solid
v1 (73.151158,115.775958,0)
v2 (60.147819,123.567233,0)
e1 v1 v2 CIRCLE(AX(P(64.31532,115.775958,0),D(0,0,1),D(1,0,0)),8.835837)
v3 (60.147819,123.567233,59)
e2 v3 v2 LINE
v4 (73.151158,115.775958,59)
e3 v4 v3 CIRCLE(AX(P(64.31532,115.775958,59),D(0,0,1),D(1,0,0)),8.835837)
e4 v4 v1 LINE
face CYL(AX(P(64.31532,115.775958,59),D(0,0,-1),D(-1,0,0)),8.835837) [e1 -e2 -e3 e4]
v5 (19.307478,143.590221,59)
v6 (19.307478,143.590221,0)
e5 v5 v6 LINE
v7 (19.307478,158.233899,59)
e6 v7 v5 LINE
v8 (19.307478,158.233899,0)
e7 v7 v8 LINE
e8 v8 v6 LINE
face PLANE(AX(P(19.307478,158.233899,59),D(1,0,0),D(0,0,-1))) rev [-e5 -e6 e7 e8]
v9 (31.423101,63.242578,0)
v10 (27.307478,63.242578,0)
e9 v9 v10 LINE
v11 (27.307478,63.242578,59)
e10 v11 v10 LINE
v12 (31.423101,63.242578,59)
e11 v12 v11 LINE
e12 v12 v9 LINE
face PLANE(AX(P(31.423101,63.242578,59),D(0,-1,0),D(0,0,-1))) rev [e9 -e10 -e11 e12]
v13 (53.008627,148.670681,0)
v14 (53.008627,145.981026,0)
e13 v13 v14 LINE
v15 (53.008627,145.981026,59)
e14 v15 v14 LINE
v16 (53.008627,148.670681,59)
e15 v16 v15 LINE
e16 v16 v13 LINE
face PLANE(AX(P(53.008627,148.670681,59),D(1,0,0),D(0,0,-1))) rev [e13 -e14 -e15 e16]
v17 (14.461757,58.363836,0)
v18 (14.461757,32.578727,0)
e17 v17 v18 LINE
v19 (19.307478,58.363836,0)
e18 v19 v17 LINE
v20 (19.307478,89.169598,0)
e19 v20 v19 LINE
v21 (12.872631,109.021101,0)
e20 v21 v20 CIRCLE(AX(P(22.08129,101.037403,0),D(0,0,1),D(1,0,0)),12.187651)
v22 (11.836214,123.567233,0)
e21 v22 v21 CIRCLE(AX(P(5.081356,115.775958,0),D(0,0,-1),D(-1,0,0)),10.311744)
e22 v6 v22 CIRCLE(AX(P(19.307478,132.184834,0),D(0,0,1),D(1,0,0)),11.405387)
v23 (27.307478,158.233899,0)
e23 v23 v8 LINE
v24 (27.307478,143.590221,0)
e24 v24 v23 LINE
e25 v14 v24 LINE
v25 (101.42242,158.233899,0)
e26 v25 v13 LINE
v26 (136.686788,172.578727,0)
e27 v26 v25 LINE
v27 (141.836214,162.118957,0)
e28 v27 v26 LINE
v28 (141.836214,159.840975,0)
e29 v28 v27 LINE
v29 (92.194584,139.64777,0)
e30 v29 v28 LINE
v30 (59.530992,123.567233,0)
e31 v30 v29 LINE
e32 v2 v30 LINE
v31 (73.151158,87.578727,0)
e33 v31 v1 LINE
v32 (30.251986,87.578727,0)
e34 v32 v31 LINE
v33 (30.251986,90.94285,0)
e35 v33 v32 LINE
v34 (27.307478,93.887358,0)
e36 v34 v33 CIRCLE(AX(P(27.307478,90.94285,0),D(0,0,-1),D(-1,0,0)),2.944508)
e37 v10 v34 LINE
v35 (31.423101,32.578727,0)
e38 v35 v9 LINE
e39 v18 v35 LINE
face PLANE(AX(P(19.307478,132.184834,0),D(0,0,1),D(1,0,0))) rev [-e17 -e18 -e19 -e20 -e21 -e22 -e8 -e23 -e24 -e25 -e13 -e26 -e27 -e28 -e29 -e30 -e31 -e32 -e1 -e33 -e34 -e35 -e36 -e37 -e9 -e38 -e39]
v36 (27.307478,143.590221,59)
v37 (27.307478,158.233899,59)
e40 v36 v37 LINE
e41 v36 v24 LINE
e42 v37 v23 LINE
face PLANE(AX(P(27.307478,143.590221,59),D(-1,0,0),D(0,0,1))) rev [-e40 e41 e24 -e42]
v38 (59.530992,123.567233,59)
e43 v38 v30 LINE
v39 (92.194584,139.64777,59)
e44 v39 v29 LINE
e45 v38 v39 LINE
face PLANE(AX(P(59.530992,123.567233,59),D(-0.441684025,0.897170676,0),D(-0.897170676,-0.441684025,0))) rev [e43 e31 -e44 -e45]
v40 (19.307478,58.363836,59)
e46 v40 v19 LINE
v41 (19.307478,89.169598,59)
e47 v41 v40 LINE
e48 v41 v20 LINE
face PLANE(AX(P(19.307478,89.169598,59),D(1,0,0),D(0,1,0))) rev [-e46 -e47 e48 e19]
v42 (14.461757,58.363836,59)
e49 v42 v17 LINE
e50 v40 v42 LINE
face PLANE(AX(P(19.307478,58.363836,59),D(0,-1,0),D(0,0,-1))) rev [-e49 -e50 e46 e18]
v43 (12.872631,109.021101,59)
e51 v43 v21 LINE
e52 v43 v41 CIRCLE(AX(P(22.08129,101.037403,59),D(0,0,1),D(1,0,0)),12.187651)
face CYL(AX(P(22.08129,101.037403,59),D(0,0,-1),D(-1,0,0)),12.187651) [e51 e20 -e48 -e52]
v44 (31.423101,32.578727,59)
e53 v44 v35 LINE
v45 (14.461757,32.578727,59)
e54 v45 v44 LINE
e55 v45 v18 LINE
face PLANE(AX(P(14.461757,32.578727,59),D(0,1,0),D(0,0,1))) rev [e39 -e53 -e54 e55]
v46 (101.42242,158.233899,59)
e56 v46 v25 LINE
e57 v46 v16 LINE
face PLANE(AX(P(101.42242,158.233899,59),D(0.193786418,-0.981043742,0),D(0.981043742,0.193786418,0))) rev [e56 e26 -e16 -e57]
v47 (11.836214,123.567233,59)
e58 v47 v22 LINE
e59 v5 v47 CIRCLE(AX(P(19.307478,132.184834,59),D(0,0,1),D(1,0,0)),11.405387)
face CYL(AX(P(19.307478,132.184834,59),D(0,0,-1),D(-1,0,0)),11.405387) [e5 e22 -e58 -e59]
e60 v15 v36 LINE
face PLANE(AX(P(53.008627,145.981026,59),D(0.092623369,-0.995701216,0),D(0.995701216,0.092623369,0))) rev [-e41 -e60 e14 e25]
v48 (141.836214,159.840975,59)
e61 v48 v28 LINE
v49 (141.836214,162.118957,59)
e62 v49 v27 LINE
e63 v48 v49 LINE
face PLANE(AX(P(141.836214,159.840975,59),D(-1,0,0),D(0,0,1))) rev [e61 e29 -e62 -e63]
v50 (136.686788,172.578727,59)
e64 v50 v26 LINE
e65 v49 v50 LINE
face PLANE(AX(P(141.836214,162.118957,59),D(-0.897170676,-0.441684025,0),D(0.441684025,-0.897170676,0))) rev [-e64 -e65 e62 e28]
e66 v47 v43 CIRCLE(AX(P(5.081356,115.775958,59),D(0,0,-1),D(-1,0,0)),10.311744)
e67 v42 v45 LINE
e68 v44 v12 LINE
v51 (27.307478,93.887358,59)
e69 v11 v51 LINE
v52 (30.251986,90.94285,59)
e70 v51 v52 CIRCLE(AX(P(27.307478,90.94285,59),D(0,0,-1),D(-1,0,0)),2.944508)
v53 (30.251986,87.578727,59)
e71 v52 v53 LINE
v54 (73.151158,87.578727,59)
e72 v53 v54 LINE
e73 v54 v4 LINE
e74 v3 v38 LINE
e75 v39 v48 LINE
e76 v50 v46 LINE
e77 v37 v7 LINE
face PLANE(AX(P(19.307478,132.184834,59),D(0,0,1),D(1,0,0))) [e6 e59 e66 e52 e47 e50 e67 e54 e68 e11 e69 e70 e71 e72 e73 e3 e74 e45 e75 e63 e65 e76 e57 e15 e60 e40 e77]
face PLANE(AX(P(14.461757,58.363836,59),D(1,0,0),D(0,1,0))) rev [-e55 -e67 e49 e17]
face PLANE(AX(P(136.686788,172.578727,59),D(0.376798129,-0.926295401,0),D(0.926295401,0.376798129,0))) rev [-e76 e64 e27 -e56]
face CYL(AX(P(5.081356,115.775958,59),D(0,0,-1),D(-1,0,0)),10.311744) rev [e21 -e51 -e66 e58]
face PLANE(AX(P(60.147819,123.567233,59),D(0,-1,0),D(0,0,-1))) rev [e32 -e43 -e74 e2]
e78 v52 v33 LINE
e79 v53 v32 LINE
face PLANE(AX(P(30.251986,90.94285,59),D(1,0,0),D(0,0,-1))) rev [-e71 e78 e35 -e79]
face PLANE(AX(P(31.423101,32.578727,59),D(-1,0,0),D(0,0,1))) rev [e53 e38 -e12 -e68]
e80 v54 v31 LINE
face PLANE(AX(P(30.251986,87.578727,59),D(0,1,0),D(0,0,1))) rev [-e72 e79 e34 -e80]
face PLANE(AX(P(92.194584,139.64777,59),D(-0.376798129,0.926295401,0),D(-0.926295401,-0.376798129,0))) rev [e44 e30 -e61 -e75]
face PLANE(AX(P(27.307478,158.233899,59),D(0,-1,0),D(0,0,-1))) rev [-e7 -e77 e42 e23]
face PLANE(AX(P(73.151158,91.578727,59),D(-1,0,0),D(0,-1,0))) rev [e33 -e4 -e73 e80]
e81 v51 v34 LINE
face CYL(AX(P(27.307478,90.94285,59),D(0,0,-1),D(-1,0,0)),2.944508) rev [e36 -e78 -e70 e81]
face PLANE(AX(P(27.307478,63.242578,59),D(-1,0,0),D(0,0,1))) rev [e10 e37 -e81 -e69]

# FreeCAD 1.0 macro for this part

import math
import FreeCAD as App
import Part
import Sketcher

doc = App.newDocument("Part")
body = doc.addObject("PartDesign::Body", "Body")

# Sketch on XY plane
sketch1 = doc.addObject("Sketcher::SketchObject", "Sketch")
body.addObject(sketch1)
sketch1.AttachmentSupport = (doc.XY_Plane, [""])
sketch1.MapMode = "FlatFace"
sketch1.addGeometry([
    Part.LineSegment(App.Vector(141.8, 162.1, 0), App.Vector(136.7, 172.6, 0)),  # 0
    Part.LineSegment(App.Vector(136.7, 172.6, 0), App.Vector(101.4, 158.2, 0)),  # 1
    Part.LineSegment(App.Vector(101.4, 158.2, 0), App.Vector(53, 148.7, 0)),  # 2
    Part.LineSegment(App.Vector(53, 148.7, 0), App.Vector(53, 146, 0)),  # 3
    Part.LineSegment(App.Vector(53, 146, 0), App.Vector(27.3, 143.6, 0)),  # 4
    Part.LineSegment(App.Vector(27.3, 143.6, 0), App.Vector(27.3, 158.2, 0)),  # 5
    Part.LineSegment(App.Vector(27.3, 158.2, 0), App.Vector(19.3, 158.2, 0)),  # 6
    Part.LineSegment(App.Vector(19.3, 158.2, 0), App.Vector(19.3, 143.6, 0)),  # 7
    Part.ArcOfCircle(Part.Circle(App.Vector(19.3, 132.2, 0), App.Vector(0, 0, 1), 11.4), math.radians(90), math.radians(229)),  # 8
    Part.ArcOfCircle(Part.Circle(App.Vector(5.1, 115.8, 0), App.Vector(0, 0, 1), 10.3), math.radians(-41), math.radians(49)),  # 9
    Part.ArcOfCircle(Part.Circle(App.Vector(22.1, 101, 0), App.Vector(0, 0, 1), 12.2), math.radians(139), math.radians(257)),  # 10
    Part.LineSegment(App.Vector(19.3, 89.2, 0), App.Vector(19.3, 58.4, 0)),  # 11
    Part.LineSegment(App.Vector(19.3, 58.4, 0), App.Vector(14.5, 58.4, 0)),  # 12
    Part.LineSegment(App.Vector(14.5, 58.4, 0), App.Vector(14.5, 32.6, 0)),  # 13
    Part.LineSegment(App.Vector(14.5, 32.6, 0), App.Vector(31.4, 32.6, 0)),  # 14
    Part.LineSegment(App.Vector(31.4, 32.6, 0), App.Vector(31.4, 63.2, 0)),  # 15
    Part.LineSegment(App.Vector(31.4, 63.2, 0), App.Vector(27.3, 63.2, 0)),  # 16
    Part.LineSegment(App.Vector(27.3, 63.2, 0), App.Vector(27.3, 93.9, 0)),  # 17
    Part.ArcOfCircle(Part.Circle(App.Vector(27.3, 90.9, 0), App.Vector(0, 0, 1), 2.9), math.radians(0), math.radians(90)),  # 18
    Part.LineSegment(App.Vector(30.3, 90.9, 0), App.Vector(30.3, 87.6, 0)),  # 19
    Part.LineSegment(App.Vector(30.3, 87.6, 0), App.Vector(73.2, 87.6, 0)),  # 20
    Part.LineSegment(App.Vector(73.2, 87.6, 0), App.Vector(73.2, 115.8, 0)),  # 21
    Part.ArcOfCircle(Part.Circle(App.Vector(64.3, 115.8, 0), App.Vector(0, 0, 1), 8.8), math.radians(0), math.radians(118)),  # 22
    Part.LineSegment(App.Vector(60.1, 123.6, 0), App.Vector(59.5, 123.6, 0)),  # 23
    Part.LineSegment(App.Vector(59.5, 123.6, 0), App.Vector(92.2, 139.6, 0)),  # 24
    Part.LineSegment(App.Vector(92.2, 139.6, 0), App.Vector(141.8, 159.8, 0)),  # 25
    Part.LineSegment(App.Vector(141.8, 159.8, 0), App.Vector(141.8, 162.1, 0)),  # 26
], False)
sketch1.addConstraint([
    Sketcher.Constraint("Coincident", 0, 2, 1, 1),
    Sketcher.Constraint("Coincident", 1, 2, 2, 1),
    Sketcher.Constraint("Coincident", 2, 2, 3, 1),
    Sketcher.Constraint("Coincident", 3, 2, 4, 1),
    Sketcher.Constraint("Coincident", 4, 2, 5, 1),
    Sketcher.Constraint("Coincident", 5, 2, 6, 1),
    Sketcher.Constraint("Coincident", 6, 2, 7, 1),
    Sketcher.Constraint("Coincident", 7, 2, 8, 1),
    Sketcher.Constraint("Tangent", 8, 2, 9, 2),
    Sketcher.Constraint("Tangent", 9, 1, 10, 1),
    Sketcher.Constraint("Coincident", 10, 2, 11, 1),
    Sketcher.Constraint("Coincident", 11, 2, 12, 1),
    Sketcher.Constraint("Coincident", 12, 2, 13, 1),
    Sketcher.Constraint("Coincident", 13, 2, 14, 1),
    Sketcher.Constraint("Coincident", 14, 2, 15, 1),
    Sketcher.Constraint("Coincident", 15, 2, 16, 1),
    Sketcher.Constraint("Coincident", 16, 2, 17, 1),
    Sketcher.Constraint("Coincident", 17, 2, 18, 2),
    Sketcher.Constraint("Tangent", 18, 1, 19, 1),
    Sketcher.Constraint("Coincident", 19, 2, 20, 1),
    Sketcher.Constraint("Coincident", 20, 2, 21, 1),
    Sketcher.Constraint("Tangent", 21, 2, 22, 1),
    Sketcher.Constraint("Coincident", 22, 2, 23, 1),
    Sketcher.Constraint("Coincident", 23, 2, 24, 1),
    Sketcher.Constraint("Coincident", 24, 2, 25, 1),
    Sketcher.Constraint("Coincident", 25, 2, 26, 1),
    Sketcher.Constraint("Coincident", 26, 2, 0, 1),
    Sketcher.Constraint("Vertical", 3),
    Sketcher.Constraint("Vertical", 5),
    Sketcher.Constraint("Horizontal", 6),
    Sketcher.Constraint("Vertical", 7),
    Sketcher.Constraint("Vertical", 11),
    Sketcher.Constraint("Horizontal", 12),
    Sketcher.Constraint("Vertical", 13),
    Sketcher.Constraint("Horizontal", 14),
    Sketcher.Constraint("Vertical", 15),
    Sketcher.Constraint("Horizontal", 16),
    Sketcher.Constraint("Vertical", 17),
    Sketcher.Constraint("Vertical", 19),
    Sketcher.Constraint("Horizontal", 20),
    Sketcher.Constraint("Vertical", 21),
    Sketcher.Constraint("Horizontal", 23),
    Sketcher.Constraint("Vertical", 26),
    Sketcher.Constraint("Perpendicular", 0, 24),
    Sketcher.Constraint("Parallel", 1, 25),
    Sketcher.Constraint("Horizontal", 9, 3, 22, 3),
    Sketcher.Constraint("Horizontal", 1, 2, 5, 2),
    Sketcher.Constraint("Horizontal", 4, 2, 7, 2),
    Sketcher.Constraint("Horizontal", 8, 2, 22, 2),
    Sketcher.Constraint("Vertical", 18, 3, 4, 2),
    Sketcher.Constraint("Vertical", 8, 3, 6, 2),
    Sketcher.Constraint("Vertical", 7, 2, 10, 2),
    Sketcher.Constraint("Vertical", 5, 2, 16, 2),
    Sketcher.Constraint("DistanceX", 6, 2, 6, 1, 8.0),
    Sketcher.Constraint("Radius", 10, 12.187651),
    Sketcher.Constraint("Radius", 8, 11.405387),
    Sketcher.Constraint("Radius", 9, 10.311744),
    Sketcher.Constraint("Radius", 18, 2.944508),
    Sketcher.Constraint("Radius", 22, 8.835837),
    Sketcher.Constraint("DistanceY", 21, 2, 26, 2, 46.342998),
    Sketcher.Constraint("DistanceX", 12, 2, 12, 1, 4.845721),
    Sketcher.Constraint("DistanceX", 20, 1, 20, 2, 42.899172),
    Sketcher.Constraint("DistanceY", 5, 1, 5, 2, 14.643678),
    Sketcher.Constraint("DistanceY", 11, 2, 11, 1, 30.805761),
    Sketcher.Constraint("DistanceY", 13, 2, 13, 1, 25.785109),
    Sketcher.Constraint("DistanceY", 15, 1, 15, 2, 30.663851),
    Sketcher.Constraint("DistanceY", 17, 1, 17, 2, 30.64478),
    Sketcher.Constraint("DistanceY", 21, 1, 21, 2, 28.197231),
    Sketcher.Constraint("DistanceY", 26, 1, 26, 2, 2.277981),
    Sketcher.Constraint("DistanceY", -1, 1, 1, 2, 158.233899),
    Sketcher.Constraint("DistanceY", -1, 1, 9, 1, 109.021101),
    Sketcher.Constraint("DistanceX", -1, 1, 14, 2, 31.423101),
    Sketcher.Constraint("DistanceX", 10, 3, 0, 2, 114.605499),
    Sketcher.Constraint("DistanceX", 22, 3, 1, 2, 37.1071),
    Sketcher.Constraint("DistanceY", 8, 2, 8, 3, 8.617602),
    Sketcher.Constraint("Distance", 2, 49.349271),
    Sketcher.Constraint("Distance", 4, 25.81211),
    Sketcher.Constraint("DistanceX", 14, 1, 14, 2, 16.961344),
    Sketcher.Constraint("DistanceX", 23, 2, 23, 1, 0.616827),
    Sketcher.Constraint("DistanceY", 3, 2, 3, 1, 2.689655),
    Sketcher.Constraint("DistanceY", -1, 1, 24, 2, 139.64777),
    Sketcher.Constraint("DistanceY", 22, 3, 0, 2, 56.802769),
])
pad1 = doc.addObject("PartDesign::Pad", "Pad")
body.addObject(pad1)
pad1.Profile = sketch1
pad1.Length = 59

doc.recompute()
